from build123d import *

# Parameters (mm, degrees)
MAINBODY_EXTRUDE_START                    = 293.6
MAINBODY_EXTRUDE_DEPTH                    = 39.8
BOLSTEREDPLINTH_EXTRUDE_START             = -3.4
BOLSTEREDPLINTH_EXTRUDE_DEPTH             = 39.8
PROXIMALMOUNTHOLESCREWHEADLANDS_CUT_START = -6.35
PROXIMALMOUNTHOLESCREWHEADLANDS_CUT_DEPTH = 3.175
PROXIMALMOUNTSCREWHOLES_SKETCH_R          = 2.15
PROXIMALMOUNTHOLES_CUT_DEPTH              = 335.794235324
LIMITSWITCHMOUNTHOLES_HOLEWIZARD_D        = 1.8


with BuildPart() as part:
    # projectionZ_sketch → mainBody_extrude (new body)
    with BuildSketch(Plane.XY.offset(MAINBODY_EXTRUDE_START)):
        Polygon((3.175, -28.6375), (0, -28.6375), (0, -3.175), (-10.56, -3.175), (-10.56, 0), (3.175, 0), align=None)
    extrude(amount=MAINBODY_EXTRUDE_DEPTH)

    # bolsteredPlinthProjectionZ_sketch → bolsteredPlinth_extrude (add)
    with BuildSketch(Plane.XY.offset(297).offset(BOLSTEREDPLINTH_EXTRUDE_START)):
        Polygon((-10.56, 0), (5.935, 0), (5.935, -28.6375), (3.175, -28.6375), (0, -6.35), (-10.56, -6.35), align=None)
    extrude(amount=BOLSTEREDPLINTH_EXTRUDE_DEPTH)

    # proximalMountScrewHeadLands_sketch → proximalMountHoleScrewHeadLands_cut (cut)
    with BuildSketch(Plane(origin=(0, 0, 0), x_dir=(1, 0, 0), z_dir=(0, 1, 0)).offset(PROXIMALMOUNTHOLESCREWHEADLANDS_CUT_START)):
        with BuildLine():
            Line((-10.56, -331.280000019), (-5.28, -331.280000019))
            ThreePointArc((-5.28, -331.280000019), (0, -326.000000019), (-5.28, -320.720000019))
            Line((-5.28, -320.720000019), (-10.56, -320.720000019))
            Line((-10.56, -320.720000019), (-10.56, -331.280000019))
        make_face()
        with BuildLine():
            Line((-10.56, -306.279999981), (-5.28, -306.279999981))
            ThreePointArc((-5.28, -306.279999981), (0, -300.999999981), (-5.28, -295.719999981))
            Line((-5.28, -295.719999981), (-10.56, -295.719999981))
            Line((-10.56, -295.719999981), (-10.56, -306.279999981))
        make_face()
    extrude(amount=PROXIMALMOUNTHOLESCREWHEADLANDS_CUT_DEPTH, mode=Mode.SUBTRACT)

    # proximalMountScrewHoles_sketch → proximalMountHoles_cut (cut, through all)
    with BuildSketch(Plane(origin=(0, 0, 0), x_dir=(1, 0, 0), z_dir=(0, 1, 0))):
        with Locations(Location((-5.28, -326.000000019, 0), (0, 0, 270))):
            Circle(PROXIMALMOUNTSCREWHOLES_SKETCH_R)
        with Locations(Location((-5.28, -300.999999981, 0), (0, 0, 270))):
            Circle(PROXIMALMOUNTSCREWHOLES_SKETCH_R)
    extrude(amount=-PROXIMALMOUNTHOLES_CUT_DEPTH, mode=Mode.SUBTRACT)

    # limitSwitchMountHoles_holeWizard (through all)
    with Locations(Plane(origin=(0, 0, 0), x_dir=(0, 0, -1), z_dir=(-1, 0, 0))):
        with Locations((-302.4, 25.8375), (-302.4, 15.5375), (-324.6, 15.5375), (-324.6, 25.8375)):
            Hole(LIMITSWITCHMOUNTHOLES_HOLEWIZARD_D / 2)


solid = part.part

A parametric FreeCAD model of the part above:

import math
import FreeCAD as App
import Part
import Sketcher
from FreeCAD import Vector
Q = App.Units.Quantity


def add_polygon(sketch, points):
    """Adds a closed chain of lines whose ends are joined by coincident constraints."""
    first, n = sketch.GeometryCount, len(points)
    for a, b in zip(points, points[1:] + points[:1]):
        sketch.addGeometry(Part.LineSegment(App.Vector(*a, 0), App.Vector(*b, 0)), False)
    for i in range(n):
        sketch.addConstraint(Sketcher.Constraint("Coincident", first + i, 2, first + (i + 1) % n, 1))

doc = App.newDocument("Part")
body = doc.addObject("PartDesign::Body", "Body")

sketch1 = body.newObject("Sketcher::SketchObject", "Sketch")
sketch1.AttachmentSupport = (doc.getObject("XY_Plane"), [""])
sketch1.MapMode = "FlatFace"
sketch1.AttachmentOffset = App.Placement(Vector(0, 0, 293.6), App.Rotation())
add_polygon(sketch1, [(0, -28.6), (3.2, -28.6), (3.2, 0), (-10.6, 0), (-10.6, -3.2), (0, -3.2)])
sketch1.addConstraint(Sketcher.Constraint("Horizontal", 0))
sketch1.addConstraint(Sketcher.Constraint("Vertical", 1))
sketch1.addConstraint(Sketcher.Constraint("Horizontal", 2))
sketch1.addConstraint(Sketcher.Constraint("Vertical", 3))
sketch1.addConstraint(Sketcher.Constraint("Horizontal", 4))
sketch1.addConstraint(Sketcher.Constraint("Vertical", 5))
sketch1.addConstraint(Sketcher.Constraint("PointOnObject", 1, 2, -1))
sketch1.addConstraint(Sketcher.Constraint("PointOnObject", 4, 2, -2))
sketch1.addConstraint(Sketcher.Constraint("Equal", 0, 3))
sketch1.addConstraint(Sketcher.Constraint("DistanceX", 4, 1, 4, 2, Q("10.56 mm")))
sketch1.addConstraint(Sketcher.Constraint("DistanceX", 0, 1, 0, 2, Q("3.175 mm")))
sketch1.addConstraint(Sketcher.Constraint("DistanceY", 1, 1, 1, 2, Q("28.6375 mm")))
pad1 = body.newObject("PartDesign::Pad", "Pad")
pad1.Profile = sketch1
pad1.Length = 39.8

sketch2 = body.newObject("Sketcher::SketchObject", "Sketch001")
sketch2.AttachmentSupport = (doc.getObject("XY_Plane"), [""])
sketch2.MapMode = "FlatFace"
sketch2.AttachmentOffset = App.Placement(Vector(0, 0, 293.6), App.Rotation())
add_polygon(sketch2, [(5.9, 0), (-10.6, 0), (-10.6, -6.3), (0, -6.3), (3.2, -28.6), (5.9, -28.6)])
sketch2.addConstraint(Sketcher.Constraint("Horizontal", 0))
sketch2.addConstraint(Sketcher.Constraint("Vertical", 1))
sketch2.addConstraint(Sketcher.Constraint("Horizontal", 2))
sketch2.addConstraint(Sketcher.Constraint("Horizontal", 4))
sketch2.addConstraint(Sketcher.Constraint("Vertical", 5))
sketch2.addConstraint(Sketcher.Constraint("PointOnObject", 0, 2, -1))
sketch2.addConstraint(Sketcher.Constraint("PointOnObject", 2, 2, -2))
sketch2.addConstraint(Sketcher.Constraint("DistanceX", 2, 1, 2, 2, Q("10.56 mm")))
sketch2.addConstraint(Sketcher.Constraint("DistanceX", 4, 1, 4, 2, Q("2.76 mm")))
sketch2.addConstraint(Sketcher.Constraint("DistanceY", 1, 2, 1, 1, Q("6.35 mm")))
sketch2.addConstraint(Sketcher.Constraint("DistanceX", 0, 2, 0, 1, Q("16.495 mm")))
sketch2.addConstraint(Sketcher.Constraint("DistanceY", 5, 1, 5, 2, Q("28.6375 mm")))
pad2 = body.newObject("PartDesign::Pad", "Pad001")
pad2.Profile = sketch2
pad2.Length = 39.8

sketch3 = body.newObject("Sketcher::SketchObject", "Sketch002")
sketch3.AttachmentSupport = (doc.getObject("XZ_Plane"), [""])
sketch3.MapMode = "FlatFace"
sketch3.AttachmentOffset = App.Placement(Vector(0, 0, 6.35), App.Rotation())
sketch3.addGeometry(Part.LineSegment(Vector(-11, 331, 0), Vector(-5, 331, 0)), False)
sketch3.addGeometry(Part.ArcOfCircle(Part.Circle(Vector(-5, 326, 0), Vector(0, 0, 1), 5), math.radians(-90), math.radians(90)), False)
sketch3.addGeometry(Part.LineSegment(Vector(-5, 321, 0), Vector(-11, 321, 0)), False)
sketch3.addGeometry(Part.LineSegment(Vector(-11, 321, 0), Vector(-11, 331, 0)), False)
sketch3.addGeometry(Part.LineSegment(Vector(-11, 306, 0), Vector(-5, 306, 0)), False)
sketch3.addGeometry(Part.ArcOfCircle(Part.Circle(Vector(-5, 301, 0), Vector(0, 0, 1), 5), math.radians(-90), math.radians(90)), False)
sketch3.addGeometry(Part.LineSegment(Vector(-5, 296, 0), Vector(-11, 296, 0)), False)
sketch3.addGeometry(Part.LineSegment(Vector(-11, 296, 0), Vector(-11, 306, 0)), False)
sketch3.addConstraint(Sketcher.Constraint("Tangent", 0, 2, 1, 2))
sketch3.addConstraint(Sketcher.Constraint("Tangent", 1, 1, 2, 1))
sketch3.addConstraint(Sketcher.Constraint("Coincident", 2, 2, 3, 1))
sketch3.addConstraint(Sketcher.Constraint("Coincident", 3, 2, 0, 1))
sketch3.addConstraint(Sketcher.Constraint("Tangent", 4, 2, 5, 2))
sketch3.addConstraint(Sketcher.Constraint("Tangent", 5, 1, 6, 1))
sketch3.addConstraint(Sketcher.Constraint("Coincident", 6, 2, 7, 1))
sketch3.addConstraint(Sketcher.Constraint("Coincident", 7, 2, 4, 1))
sketch3.addConstraint(Sketcher.Constraint("Horizontal", 0))
sketch3.addConstraint(Sketcher.Constraint("Horizontal", 2))
sketch3.addConstraint(Sketcher.Constraint("Vertical", 3))
sketch3.addConstraint(Sketcher.Constraint("Horizontal", 4))
sketch3.addConstraint(Sketcher.Constraint("Horizontal", 6))
sketch3.addConstraint(Sketcher.Constraint("Vertical", 7))
sketch3.addConstraint(Sketcher.Constraint("Equal", 1, 5))
sketch3.addConstraint(Sketcher.Constraint("Vertical", 1, 3, 5, 3))
sketch3.addConstraint(Sketcher.Constraint("Vertical", 3, 2, 6, 2))
sketch3.addConstraint(Sketcher.Constraint("Radius", 1, Q("5.28 mm")))
sketch3.addConstraint(Sketcher.Constraint("DistanceY", -1, 1, 1, 3, Q("326 mm")))
sketch3.addConstraint(Sketcher.Constraint("DistanceY", -1, 1, 5, 3, Q("301 mm")))
sketch3.addConstraint(Sketcher.Constraint("DistanceX", 0, 1, 0, 2, Q("5.28 mm")))
sketch3.addConstraint(Sketcher.Constraint("DistanceX", 1, 3, -1, 1, Q("5.28 mm")))
pocket1 = body.newObject("PartDesign::Pocket", "Pocket")
pocket1.Profile = sketch3
pocket1.Length = 3.175

sketch4 = body.newObject("Sketcher::SketchObject", "Sketch003")
sketch4.AttachmentSupport = (doc.getObject("XZ_Plane"), [""])
sketch4.MapMode = "FlatFace"
sketch4.addGeometry(Part.Circle(Vector(-5.3, 326, 0), Vector(0, 0, 1), 2.1), False)
sketch4.addGeometry(Part.Circle(Vector(-5.3, 301, 0), Vector(0, 0, 1), 2.1), False)
sketch4.addConstraint(Sketcher.Constraint("Equal", 0, 1))
sketch4.addConstraint(Sketcher.Constraint("Vertical", 0, 3, 1, 3))
sketch4.addConstraint(Sketcher.Constraint("Diameter", 0, Q("4.3 mm")))
sketch4.addConstraint(Sketcher.Constraint("DistanceY", -1, 1, 0, 3, Q("326 mm")))
sketch4.addConstraint(Sketcher.Constraint("DistanceY", -1, 1, 1, 3, Q("301 mm")))
sketch4.addConstraint(Sketcher.Constraint("DistanceX", 0, 3, -1, 1, Q("5.28 mm")))
pocket2 = body.newObject("PartDesign::Pocket", "Pocket001")
pocket2.Profile = sketch4
pocket2.Type = "ThroughAll"
pocket2.Reversed = True

sketch5 = body.newObject("Sketcher::SketchObject", "Sketch004")
sketch5.AttachmentSupport = (doc.getObject("YZ_Plane"), [""])
sketch5.MapMode = "FlatFace"
sketch5.addGeometry(Part.Circle(Vector(-25.8, 302.4, 0), Vector(0, 0, 1), 0.9), False)
sketch5.addGeometry(Part.Circle(Vector(-15.5, 302.4, 0), Vector(0, 0, 1), 0.9), False)
sketch5.addGeometry(Part.Circle(Vector(-15.5, 324.6, 0), Vector(0, 0, 1), 0.9), False)
sketch5.addGeometry(Part.Circle(Vector(-25.8, 324.6, 0), Vector(0, 0, 1), 0.9), False)
sketch5.addConstraint(Sketcher.Constraint("Equal", 0, 1))
sketch5.addConstraint(Sketcher.Constraint("Equal", 1, 2))
sketch5.addConstraint(Sketcher.Constraint("Equal", 2, 3))
sketch5.addConstraint(Sketcher.Constraint("Horizontal", 0, 3, 1, 3))
sketch5.addConstraint(Sketcher.Constraint("Horizontal", 2, 3, 3, 3))
sketch5.addConstraint(Sketcher.Constraint("Vertical", 1, 3, 2, 3))
sketch5.addConstraint(Sketcher.Constraint("Vertical", 0, 3, 3, 3))
sketch5.addConstraint(Sketcher.Constraint("Diameter", 0, Q("1.8 mm")))
sketch5.addConstraint(Sketcher.Constraint("DistanceY", -1, 1, 0, 3, Q("302.4 mm")))
sketch5.addConstraint(Sketcher.Constraint("DistanceY", -1, 1, 2, 3, Q("324.6 mm")))
sketch5.addConstraint(Sketcher.Constraint("DistanceX", 0, 3, 1, 3, Q("10.3 mm")))
sketch5.addConstraint(Sketcher.Constraint("DistanceX", 0, 3, -1, 1, Q("25.8375 mm")))
doc.recompute()
hole = body.newObject("PartDesign::Hole", "Hole")
hole.Profile = sketch5
hole.ThreadType = "None"
hole.Diameter = 1.8
hole.DepthType = "ThroughAll"
hole.Reversed = True

doc.recompute()
